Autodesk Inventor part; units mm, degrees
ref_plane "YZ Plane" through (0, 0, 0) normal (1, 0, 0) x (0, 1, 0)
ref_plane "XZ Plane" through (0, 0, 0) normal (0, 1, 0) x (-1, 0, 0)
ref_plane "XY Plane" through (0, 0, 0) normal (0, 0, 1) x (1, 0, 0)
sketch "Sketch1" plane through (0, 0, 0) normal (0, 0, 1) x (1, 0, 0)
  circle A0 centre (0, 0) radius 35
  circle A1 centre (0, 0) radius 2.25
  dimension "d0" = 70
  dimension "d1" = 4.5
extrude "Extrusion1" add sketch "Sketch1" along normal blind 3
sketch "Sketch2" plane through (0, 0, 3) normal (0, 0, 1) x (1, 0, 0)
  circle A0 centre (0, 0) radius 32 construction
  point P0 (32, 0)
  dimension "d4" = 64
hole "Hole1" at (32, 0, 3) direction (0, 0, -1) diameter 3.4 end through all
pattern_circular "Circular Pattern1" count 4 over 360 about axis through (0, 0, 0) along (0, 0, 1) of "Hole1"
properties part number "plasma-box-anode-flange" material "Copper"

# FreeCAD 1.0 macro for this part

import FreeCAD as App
import Part
import Sketcher

V = App.Vector
Q = App.Units.Quantity

doc = App.newDocument("Part")
params = doc.addObject("Spreadsheet::Sheet", "Params")
for row, (alias, value) in enumerate([
    ("sketch1_diameter", "70 mm"),
    ("sketch1_diameter2", "4.5 mm"),
    ("pad1_length", "3 mm"),
    ("sketch2_diameter", "3.4 mm"),
    ("hole_diameter", "3.4 mm"),
], start=1):
    params.set(f"A{row}", alias)
    params.set(f"B{row}", "=" + value)
    params.setAlias(f"B{row}", alias)

body = doc.addObject("PartDesign::Body", "Body")

sketch1 = body.newObject("Sketcher::SketchObject", "Sketch")
sketch1.AttachmentSupport = (doc.getObject("XY_Plane"), [""])
sketch1.MapMode = "FlatFace"
sketch1.addGeometry(Part.Circle(V(0, 0, 0), V(0, 0, 1), 35), False)
sketch1.addGeometry(Part.Circle(V(0, 0, 0), V(0, 0, 1), 2.2), False)
sketch1.addConstraint(Sketcher.Constraint("Coincident", 0, 3, -1, 1))
sketch1.addConstraint(Sketcher.Constraint("Coincident", 1, 3, -1, 1))
sketch1.addConstraint(Sketcher.Constraint("Diameter", 0, Q("70 mm")))
sketch1.addConstraint(Sketcher.Constraint("Diameter", 1, Q("4.5 mm")))
sketch1.setExpression("Constraints[2]", "Params.sketch1_diameter")
sketch1.setExpression("Constraints[3]", "Params.sketch1_diameter2")
pad1 = body.newObject("PartDesign::Pad", "Pad")
pad1.Profile = sketch1
pad1.setExpression("Length", "Params.pad1_length")

sketch2 = body.newObject("Sketcher::SketchObject", "Sketch001")
sketch2.AttachmentSupport = (doc.getObject("XY_Plane"), [""])
sketch2.MapMode = "FlatFace"
sketch2.AttachmentOffset = App.Placement(V(0, 0, 3), App.Rotation())
sketch2.addGeometry(Part.Circle(V(32, 0, 0), V(0, 0, 1), 1.7), False)
sketch2.addConstraint(Sketcher.Constraint("PointOnObject", 0, 3, -1))
sketch2.addConstraint(Sketcher.Constraint("Diameter", 0, Q("3.4 mm")))
sketch2.addConstraint(Sketcher.Constraint("DistanceX", -1, 1, 0, 3, Q("32 mm")))
sketch2.setExpression("Constraints[1]", "Params.sketch2_diameter")
doc.recompute()
hole = body.newObject("PartDesign::Hole", "Hole")
hole.Profile = sketch2
hole.ThreadType = "None"
hole.setExpression("Diameter", "Params.hole_diameter")
hole.DepthType = "ThroughAll"
doc.recompute()

polarpattern = body.newObject("PartDesign::PolarPattern", "PolarPattern")
polarpattern.Originals = [hole]
polarpattern.Axis = (doc.getObject("Z_Axis"), [""])
polarpattern.Angle = 360
polarpattern.Occurrences = 4
body.Tip = polarpattern

doc.recompute()
